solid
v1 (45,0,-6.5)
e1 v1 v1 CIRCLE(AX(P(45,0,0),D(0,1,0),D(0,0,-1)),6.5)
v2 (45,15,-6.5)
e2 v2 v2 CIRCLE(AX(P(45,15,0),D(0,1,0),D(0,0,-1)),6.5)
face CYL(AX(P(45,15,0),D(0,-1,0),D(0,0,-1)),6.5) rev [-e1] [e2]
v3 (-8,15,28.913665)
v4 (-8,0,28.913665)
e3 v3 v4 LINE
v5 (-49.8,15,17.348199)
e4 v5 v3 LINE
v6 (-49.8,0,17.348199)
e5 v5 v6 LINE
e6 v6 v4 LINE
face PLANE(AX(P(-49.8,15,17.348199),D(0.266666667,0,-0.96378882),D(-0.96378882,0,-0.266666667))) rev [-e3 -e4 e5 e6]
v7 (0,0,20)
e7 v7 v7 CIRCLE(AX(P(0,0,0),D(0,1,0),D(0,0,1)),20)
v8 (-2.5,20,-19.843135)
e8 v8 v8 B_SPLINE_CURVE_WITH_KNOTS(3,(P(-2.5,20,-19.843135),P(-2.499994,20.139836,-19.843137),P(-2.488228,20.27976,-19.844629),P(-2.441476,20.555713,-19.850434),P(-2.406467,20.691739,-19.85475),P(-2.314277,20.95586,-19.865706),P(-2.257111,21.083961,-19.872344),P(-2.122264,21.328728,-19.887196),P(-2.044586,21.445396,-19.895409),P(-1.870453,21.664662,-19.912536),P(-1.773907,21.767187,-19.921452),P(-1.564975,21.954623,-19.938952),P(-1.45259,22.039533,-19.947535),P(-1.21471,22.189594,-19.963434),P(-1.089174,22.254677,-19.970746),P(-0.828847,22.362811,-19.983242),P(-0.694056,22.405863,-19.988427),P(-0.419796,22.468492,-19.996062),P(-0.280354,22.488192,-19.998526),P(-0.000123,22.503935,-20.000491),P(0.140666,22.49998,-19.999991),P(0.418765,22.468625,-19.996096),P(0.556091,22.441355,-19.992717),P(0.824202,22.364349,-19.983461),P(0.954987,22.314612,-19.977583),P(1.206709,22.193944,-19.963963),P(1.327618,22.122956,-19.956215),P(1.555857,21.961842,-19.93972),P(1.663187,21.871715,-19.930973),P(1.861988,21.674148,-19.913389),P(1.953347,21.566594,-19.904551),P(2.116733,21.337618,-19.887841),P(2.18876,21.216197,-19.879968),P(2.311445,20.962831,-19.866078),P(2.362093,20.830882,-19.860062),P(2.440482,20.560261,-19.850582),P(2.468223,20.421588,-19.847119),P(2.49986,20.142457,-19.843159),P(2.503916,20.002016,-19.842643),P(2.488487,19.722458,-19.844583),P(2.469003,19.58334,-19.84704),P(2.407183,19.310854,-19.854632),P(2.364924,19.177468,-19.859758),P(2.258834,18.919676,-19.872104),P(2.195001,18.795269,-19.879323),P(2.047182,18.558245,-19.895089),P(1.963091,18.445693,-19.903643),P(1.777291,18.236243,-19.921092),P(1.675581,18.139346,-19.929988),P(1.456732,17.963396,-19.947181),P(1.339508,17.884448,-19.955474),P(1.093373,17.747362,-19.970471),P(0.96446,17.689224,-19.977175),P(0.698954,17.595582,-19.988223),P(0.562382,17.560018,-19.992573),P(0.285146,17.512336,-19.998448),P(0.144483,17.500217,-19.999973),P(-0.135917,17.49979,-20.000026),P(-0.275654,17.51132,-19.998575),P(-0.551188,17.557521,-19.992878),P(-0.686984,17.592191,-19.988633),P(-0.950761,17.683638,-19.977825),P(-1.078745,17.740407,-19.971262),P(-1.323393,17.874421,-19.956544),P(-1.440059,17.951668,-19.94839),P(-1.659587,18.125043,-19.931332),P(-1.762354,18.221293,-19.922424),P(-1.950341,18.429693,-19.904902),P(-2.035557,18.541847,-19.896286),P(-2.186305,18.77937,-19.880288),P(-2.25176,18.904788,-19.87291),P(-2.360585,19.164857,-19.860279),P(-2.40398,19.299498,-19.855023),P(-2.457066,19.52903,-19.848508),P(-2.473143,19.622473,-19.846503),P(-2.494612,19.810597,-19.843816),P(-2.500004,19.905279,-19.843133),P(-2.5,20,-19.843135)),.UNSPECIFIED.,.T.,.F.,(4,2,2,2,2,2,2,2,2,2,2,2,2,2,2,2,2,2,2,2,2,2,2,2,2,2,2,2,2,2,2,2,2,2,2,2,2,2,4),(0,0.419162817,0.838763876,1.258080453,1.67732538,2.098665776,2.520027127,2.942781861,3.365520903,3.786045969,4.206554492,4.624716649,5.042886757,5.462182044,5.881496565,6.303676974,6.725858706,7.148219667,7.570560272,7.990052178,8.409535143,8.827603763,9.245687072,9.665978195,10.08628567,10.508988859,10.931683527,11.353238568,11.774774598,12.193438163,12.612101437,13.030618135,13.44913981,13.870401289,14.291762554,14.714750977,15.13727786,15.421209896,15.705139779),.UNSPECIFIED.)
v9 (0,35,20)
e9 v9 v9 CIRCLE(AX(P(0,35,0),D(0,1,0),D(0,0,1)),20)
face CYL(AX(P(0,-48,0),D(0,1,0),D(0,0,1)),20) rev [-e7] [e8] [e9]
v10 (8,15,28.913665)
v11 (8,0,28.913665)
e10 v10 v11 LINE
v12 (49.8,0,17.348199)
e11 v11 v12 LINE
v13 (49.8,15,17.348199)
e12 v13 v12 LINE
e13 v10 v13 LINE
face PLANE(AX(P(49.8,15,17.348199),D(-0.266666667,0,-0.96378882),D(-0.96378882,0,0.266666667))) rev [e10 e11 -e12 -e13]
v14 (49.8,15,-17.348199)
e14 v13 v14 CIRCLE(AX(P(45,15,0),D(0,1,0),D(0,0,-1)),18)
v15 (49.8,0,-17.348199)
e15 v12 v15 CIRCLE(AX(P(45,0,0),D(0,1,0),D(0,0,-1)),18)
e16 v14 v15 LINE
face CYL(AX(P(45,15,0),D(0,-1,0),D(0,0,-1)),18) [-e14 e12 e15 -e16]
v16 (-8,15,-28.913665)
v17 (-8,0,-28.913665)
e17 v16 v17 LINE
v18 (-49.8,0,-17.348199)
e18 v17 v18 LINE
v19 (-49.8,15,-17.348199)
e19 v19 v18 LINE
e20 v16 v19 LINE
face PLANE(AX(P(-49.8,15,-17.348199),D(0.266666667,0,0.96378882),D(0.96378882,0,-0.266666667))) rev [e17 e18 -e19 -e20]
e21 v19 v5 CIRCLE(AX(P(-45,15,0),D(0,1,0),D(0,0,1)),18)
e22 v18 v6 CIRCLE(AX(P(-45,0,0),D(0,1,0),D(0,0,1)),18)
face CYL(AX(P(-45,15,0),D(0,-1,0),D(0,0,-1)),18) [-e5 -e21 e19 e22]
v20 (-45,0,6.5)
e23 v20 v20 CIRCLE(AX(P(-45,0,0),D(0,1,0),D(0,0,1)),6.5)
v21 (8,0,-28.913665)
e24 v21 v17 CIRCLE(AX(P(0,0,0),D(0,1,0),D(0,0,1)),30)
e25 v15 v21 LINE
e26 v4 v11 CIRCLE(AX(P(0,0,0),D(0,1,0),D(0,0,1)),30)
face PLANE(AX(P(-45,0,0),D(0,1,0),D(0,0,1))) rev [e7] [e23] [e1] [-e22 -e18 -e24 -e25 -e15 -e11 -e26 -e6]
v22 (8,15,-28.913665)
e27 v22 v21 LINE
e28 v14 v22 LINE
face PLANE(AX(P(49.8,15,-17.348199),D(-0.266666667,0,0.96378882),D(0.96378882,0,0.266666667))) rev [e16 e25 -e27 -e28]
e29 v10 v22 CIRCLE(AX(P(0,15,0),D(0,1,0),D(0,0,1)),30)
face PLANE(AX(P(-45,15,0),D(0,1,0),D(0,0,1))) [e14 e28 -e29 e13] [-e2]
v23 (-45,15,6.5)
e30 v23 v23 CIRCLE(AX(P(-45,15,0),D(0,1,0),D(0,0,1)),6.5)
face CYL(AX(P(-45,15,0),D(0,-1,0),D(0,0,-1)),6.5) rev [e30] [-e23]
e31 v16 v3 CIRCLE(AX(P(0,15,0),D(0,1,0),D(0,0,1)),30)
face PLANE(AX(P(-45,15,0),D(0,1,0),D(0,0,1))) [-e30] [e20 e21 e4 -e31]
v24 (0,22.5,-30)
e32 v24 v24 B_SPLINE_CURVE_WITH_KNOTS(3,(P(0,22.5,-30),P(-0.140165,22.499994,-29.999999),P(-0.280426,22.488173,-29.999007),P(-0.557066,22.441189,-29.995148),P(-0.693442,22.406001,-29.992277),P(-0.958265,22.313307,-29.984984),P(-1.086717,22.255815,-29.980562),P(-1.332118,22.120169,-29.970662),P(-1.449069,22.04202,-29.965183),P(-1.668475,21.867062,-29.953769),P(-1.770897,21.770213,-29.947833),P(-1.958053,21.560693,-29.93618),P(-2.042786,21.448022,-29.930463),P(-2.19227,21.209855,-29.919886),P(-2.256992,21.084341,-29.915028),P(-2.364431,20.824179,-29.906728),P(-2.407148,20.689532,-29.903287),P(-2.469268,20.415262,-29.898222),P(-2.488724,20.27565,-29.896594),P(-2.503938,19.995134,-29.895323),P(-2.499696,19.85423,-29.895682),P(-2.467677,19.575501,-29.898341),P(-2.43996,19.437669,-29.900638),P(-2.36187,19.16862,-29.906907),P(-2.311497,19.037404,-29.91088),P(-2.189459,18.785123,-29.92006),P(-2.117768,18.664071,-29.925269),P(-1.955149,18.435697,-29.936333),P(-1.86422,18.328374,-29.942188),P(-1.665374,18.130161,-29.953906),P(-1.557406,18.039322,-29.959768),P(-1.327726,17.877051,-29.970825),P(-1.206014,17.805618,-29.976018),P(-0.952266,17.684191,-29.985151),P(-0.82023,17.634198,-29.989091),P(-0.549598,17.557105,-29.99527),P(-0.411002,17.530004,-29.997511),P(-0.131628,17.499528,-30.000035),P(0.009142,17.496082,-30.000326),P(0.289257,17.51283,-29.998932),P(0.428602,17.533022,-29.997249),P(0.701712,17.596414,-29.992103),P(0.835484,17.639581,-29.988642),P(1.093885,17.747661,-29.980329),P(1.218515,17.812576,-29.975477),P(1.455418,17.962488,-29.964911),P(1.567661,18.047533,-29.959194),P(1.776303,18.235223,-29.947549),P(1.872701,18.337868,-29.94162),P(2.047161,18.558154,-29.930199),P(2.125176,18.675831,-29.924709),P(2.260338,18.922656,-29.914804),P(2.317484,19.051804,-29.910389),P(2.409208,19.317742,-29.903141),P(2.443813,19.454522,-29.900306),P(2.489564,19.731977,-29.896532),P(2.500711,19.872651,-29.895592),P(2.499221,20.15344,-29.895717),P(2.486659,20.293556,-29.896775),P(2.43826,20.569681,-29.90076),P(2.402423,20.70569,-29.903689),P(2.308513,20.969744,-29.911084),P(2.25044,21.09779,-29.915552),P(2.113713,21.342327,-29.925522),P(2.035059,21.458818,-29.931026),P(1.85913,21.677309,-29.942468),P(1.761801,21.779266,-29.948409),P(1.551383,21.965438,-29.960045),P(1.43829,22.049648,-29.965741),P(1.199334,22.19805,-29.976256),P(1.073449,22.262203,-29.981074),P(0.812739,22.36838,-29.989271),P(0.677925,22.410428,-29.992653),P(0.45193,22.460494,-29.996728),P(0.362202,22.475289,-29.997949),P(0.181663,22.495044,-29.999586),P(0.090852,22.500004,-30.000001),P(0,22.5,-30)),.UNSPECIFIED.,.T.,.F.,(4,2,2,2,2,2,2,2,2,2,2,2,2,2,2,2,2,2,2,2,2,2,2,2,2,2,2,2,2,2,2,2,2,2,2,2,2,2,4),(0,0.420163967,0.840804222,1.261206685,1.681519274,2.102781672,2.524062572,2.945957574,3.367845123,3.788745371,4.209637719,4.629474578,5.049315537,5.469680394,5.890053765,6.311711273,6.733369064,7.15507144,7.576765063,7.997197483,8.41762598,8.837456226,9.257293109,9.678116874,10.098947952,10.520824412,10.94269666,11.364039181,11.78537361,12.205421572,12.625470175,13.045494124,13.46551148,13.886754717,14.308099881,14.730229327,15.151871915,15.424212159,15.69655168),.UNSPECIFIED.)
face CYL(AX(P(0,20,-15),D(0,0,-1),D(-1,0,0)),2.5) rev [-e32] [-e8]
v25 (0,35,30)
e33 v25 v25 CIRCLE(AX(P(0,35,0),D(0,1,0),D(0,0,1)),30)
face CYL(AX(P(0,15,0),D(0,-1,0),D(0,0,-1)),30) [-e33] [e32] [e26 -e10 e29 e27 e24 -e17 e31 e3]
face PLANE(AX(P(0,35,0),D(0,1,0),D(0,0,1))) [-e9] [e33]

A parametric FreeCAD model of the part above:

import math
import FreeCAD as App
import Part
import Sketcher
from FreeCAD import Vector
Q = App.Units.Quantity

doc = App.newDocument("Part")
body = doc.addObject("PartDesign::Body", "Body")

# Sketch on XZ plane
sketch1 = doc.addObject("Sketcher::SketchObject", "Sketch")
body.addObject(sketch1)
sketch1.AttachmentSupport = (doc.XZ_Plane, [""])
sketch1.MapMode = "FlatFace"
sketch1.addGeometry(Part.LineSegment(Vector(-8, -29, 0), Vector(-50, -17, 0)), False)
sketch1.addGeometry(Part.ArcOfCircle(Part.Circle(Vector(-45, 0, 0), Vector(0, 0, 1), 18), math.radians(105), math.radians(255)), False)
sketch1.addGeometry(Part.LineSegment(Vector(-50, 17, 0), Vector(-8, 29, 0)), False)
sketch1.addGeometry(Part.ArcOfCircle(Part.Circle(Vector(0, 0, 0), Vector(0, 0, 1), 30), math.radians(75), math.radians(105)), False)
sketch1.addGeometry(Part.LineSegment(Vector(8, 29, 0), Vector(50, 17, 0)), False)
sketch1.addGeometry(Part.ArcOfCircle(Part.Circle(Vector(45, 0, 0), Vector(0, 0, 1), 18), math.radians(-75), math.radians(75)), False)
sketch1.addGeometry(Part.LineSegment(Vector(50, -17, 0), Vector(8, -29, 0)), False)
sketch1.addGeometry(Part.ArcOfCircle(Part.Circle(Vector(0, 0, 0), Vector(0, 0, 1), 30), math.radians(-105), math.radians(-75)), False)
sketch1.addGeometry(Part.Circle(Vector(45, 0, 0), Vector(0, 0, 1), 6), False)
sketch1.addGeometry(Part.Circle(Vector(-45, 0, 0), Vector(0, 0, 1), 6), False)
sketch1.addConstraint(Sketcher.Constraint("Tangent", 0, 2, 1, 2))
sketch1.addConstraint(Sketcher.Constraint("Tangent", 1, 1, 2, 1))
sketch1.addConstraint(Sketcher.Constraint("Tangent", 2, 2, 3, 2))
sketch1.addConstraint(Sketcher.Constraint("Tangent", 3, 1, 4, 1))
sketch1.addConstraint(Sketcher.Constraint("Tangent", 4, 2, 5, 2))
sketch1.addConstraint(Sketcher.Constraint("Tangent", 5, 1, 6, 1))
sketch1.addConstraint(Sketcher.Constraint("Tangent", 6, 2, 7, 2))
sketch1.addConstraint(Sketcher.Constraint("Tangent", 7, 1, 0, 1))
sketch1.addConstraint(Sketcher.Constraint("Coincident", 3, 3, -1, 1))
sketch1.addConstraint(Sketcher.Constraint("Coincident", 7, 3, -1, 1))
sketch1.addConstraint(Sketcher.Constraint("Coincident", 8, 3, 5, 3))
sketch1.addConstraint(Sketcher.Constraint("Coincident", 9, 3, 1, 3))
sketch1.addConstraint(Sketcher.Constraint("Equal", 1, 5))
sketch1.addConstraint(Sketcher.Constraint("Equal", 3, 7))
sketch1.addConstraint(Sketcher.Constraint("Equal", 8, 9))
sketch1.addConstraint(Sketcher.Constraint("Symmetric", 1, 3, 5, 3, -1, 1))
sketch1.addConstraint(Sketcher.Constraint("PointOnObject", 1, 3, -1))
sketch1.addConstraint(Sketcher.Constraint("Diameter", 8, Q("13 mm")))
sketch1.addConstraint(Sketcher.Constraint("Radius", 1, Q("18 mm")))
sketch1.addConstraint(Sketcher.Constraint("Radius", 3, Q("30 mm")))
sketch1.addConstraint(Sketcher.Constraint("DistanceX", 1, 3, -1, 1, Q("45 mm")))
pad1 = doc.addObject("PartDesign::Pad", "Pad")
body.addObject(pad1)
pad1.Profile = sketch1
pad1.Length = 15
pad1.Reversed = True

# Sketch on XZ plane
sketch2 = doc.addObject("Sketcher::SketchObject", "Sketch001")
body.addObject(sketch2)
sketch2.AttachmentSupport = (doc.XZ_Plane, [""])
sketch2.MapMode = "FlatFace"
sketch2.AttachmentOffset = App.Placement(Vector(0, 0, -15), App.Rotation())
sketch2.addGeometry(Part.Circle(Vector(0, 0, 0), Vector(0, 0, 1), 30), False)
sketch2.addConstraint(Sketcher.Constraint("Coincident", 0, 3, -1, 1))
sketch2.addConstraint(Sketcher.Constraint("Diameter", 0, Q("60 mm")))
pad2 = doc.addObject("PartDesign::Pad", "Pad001")
body.addObject(pad2)
pad2.Profile = sketch2
pad2.Length = 20
pad2.Reversed = True

# Sketch on XZ plane
sketch3 = doc.addObject("Sketcher::SketchObject", "Sketch002")
body.addObject(sketch3)
sketch3.AttachmentSupport = (doc.XZ_Plane, [""])
sketch3.MapMode = "FlatFace"
sketch3.AttachmentOffset = App.Placement(Vector(0, 0, -35), App.Rotation())
sketch3.addGeometry(Part.Circle(Vector(0, 0, 0), Vector(0, 0, 1), 20), False)
sketch3.addConstraint(Sketcher.Constraint("Coincident", 0, 3, -1, 1))
sketch3.addConstraint(Sketcher.Constraint("Diameter", 0, Q("40 mm")))
pocket1 = doc.addObject("PartDesign::Pocket", "Pocket")
body.addObject(pocket1)
pocket1.Profile = sketch3
pocket1.Length = 83
pocket1.Reversed = True

# Sketch on XY plane
sketch4 = doc.addObject("Sketcher::SketchObject", "Sketch003")
body.addObject(sketch4)
sketch4.AttachmentSupport = (doc.XY_Plane, [""])
sketch4.MapMode = "FlatFace"
sketch4.AttachmentOffset = App.Placement(Vector(0, 0, -30), App.Rotation())
sketch4.addGeometry(Part.Circle(Vector(0, 20, 0), Vector(0, 0, 1), 2.5), False)
sketch4.addConstraint(Sketcher.Constraint("PointOnObject", 0, 3, -2))
sketch4.addConstraint(Sketcher.Constraint("Diameter", 0, Q("5 mm")))
sketch4.addConstraint(Sketcher.Constraint("DistanceY", -1, 1, 0, 3, Q("20 mm")))
pocket2 = doc.addObject("PartDesign::Pocket", "Pocket001")
body.addObject(pocket2)
pocket2.Profile = sketch4
pocket2.Length = 15
pocket2.Reversed = True

doc.recompute()
